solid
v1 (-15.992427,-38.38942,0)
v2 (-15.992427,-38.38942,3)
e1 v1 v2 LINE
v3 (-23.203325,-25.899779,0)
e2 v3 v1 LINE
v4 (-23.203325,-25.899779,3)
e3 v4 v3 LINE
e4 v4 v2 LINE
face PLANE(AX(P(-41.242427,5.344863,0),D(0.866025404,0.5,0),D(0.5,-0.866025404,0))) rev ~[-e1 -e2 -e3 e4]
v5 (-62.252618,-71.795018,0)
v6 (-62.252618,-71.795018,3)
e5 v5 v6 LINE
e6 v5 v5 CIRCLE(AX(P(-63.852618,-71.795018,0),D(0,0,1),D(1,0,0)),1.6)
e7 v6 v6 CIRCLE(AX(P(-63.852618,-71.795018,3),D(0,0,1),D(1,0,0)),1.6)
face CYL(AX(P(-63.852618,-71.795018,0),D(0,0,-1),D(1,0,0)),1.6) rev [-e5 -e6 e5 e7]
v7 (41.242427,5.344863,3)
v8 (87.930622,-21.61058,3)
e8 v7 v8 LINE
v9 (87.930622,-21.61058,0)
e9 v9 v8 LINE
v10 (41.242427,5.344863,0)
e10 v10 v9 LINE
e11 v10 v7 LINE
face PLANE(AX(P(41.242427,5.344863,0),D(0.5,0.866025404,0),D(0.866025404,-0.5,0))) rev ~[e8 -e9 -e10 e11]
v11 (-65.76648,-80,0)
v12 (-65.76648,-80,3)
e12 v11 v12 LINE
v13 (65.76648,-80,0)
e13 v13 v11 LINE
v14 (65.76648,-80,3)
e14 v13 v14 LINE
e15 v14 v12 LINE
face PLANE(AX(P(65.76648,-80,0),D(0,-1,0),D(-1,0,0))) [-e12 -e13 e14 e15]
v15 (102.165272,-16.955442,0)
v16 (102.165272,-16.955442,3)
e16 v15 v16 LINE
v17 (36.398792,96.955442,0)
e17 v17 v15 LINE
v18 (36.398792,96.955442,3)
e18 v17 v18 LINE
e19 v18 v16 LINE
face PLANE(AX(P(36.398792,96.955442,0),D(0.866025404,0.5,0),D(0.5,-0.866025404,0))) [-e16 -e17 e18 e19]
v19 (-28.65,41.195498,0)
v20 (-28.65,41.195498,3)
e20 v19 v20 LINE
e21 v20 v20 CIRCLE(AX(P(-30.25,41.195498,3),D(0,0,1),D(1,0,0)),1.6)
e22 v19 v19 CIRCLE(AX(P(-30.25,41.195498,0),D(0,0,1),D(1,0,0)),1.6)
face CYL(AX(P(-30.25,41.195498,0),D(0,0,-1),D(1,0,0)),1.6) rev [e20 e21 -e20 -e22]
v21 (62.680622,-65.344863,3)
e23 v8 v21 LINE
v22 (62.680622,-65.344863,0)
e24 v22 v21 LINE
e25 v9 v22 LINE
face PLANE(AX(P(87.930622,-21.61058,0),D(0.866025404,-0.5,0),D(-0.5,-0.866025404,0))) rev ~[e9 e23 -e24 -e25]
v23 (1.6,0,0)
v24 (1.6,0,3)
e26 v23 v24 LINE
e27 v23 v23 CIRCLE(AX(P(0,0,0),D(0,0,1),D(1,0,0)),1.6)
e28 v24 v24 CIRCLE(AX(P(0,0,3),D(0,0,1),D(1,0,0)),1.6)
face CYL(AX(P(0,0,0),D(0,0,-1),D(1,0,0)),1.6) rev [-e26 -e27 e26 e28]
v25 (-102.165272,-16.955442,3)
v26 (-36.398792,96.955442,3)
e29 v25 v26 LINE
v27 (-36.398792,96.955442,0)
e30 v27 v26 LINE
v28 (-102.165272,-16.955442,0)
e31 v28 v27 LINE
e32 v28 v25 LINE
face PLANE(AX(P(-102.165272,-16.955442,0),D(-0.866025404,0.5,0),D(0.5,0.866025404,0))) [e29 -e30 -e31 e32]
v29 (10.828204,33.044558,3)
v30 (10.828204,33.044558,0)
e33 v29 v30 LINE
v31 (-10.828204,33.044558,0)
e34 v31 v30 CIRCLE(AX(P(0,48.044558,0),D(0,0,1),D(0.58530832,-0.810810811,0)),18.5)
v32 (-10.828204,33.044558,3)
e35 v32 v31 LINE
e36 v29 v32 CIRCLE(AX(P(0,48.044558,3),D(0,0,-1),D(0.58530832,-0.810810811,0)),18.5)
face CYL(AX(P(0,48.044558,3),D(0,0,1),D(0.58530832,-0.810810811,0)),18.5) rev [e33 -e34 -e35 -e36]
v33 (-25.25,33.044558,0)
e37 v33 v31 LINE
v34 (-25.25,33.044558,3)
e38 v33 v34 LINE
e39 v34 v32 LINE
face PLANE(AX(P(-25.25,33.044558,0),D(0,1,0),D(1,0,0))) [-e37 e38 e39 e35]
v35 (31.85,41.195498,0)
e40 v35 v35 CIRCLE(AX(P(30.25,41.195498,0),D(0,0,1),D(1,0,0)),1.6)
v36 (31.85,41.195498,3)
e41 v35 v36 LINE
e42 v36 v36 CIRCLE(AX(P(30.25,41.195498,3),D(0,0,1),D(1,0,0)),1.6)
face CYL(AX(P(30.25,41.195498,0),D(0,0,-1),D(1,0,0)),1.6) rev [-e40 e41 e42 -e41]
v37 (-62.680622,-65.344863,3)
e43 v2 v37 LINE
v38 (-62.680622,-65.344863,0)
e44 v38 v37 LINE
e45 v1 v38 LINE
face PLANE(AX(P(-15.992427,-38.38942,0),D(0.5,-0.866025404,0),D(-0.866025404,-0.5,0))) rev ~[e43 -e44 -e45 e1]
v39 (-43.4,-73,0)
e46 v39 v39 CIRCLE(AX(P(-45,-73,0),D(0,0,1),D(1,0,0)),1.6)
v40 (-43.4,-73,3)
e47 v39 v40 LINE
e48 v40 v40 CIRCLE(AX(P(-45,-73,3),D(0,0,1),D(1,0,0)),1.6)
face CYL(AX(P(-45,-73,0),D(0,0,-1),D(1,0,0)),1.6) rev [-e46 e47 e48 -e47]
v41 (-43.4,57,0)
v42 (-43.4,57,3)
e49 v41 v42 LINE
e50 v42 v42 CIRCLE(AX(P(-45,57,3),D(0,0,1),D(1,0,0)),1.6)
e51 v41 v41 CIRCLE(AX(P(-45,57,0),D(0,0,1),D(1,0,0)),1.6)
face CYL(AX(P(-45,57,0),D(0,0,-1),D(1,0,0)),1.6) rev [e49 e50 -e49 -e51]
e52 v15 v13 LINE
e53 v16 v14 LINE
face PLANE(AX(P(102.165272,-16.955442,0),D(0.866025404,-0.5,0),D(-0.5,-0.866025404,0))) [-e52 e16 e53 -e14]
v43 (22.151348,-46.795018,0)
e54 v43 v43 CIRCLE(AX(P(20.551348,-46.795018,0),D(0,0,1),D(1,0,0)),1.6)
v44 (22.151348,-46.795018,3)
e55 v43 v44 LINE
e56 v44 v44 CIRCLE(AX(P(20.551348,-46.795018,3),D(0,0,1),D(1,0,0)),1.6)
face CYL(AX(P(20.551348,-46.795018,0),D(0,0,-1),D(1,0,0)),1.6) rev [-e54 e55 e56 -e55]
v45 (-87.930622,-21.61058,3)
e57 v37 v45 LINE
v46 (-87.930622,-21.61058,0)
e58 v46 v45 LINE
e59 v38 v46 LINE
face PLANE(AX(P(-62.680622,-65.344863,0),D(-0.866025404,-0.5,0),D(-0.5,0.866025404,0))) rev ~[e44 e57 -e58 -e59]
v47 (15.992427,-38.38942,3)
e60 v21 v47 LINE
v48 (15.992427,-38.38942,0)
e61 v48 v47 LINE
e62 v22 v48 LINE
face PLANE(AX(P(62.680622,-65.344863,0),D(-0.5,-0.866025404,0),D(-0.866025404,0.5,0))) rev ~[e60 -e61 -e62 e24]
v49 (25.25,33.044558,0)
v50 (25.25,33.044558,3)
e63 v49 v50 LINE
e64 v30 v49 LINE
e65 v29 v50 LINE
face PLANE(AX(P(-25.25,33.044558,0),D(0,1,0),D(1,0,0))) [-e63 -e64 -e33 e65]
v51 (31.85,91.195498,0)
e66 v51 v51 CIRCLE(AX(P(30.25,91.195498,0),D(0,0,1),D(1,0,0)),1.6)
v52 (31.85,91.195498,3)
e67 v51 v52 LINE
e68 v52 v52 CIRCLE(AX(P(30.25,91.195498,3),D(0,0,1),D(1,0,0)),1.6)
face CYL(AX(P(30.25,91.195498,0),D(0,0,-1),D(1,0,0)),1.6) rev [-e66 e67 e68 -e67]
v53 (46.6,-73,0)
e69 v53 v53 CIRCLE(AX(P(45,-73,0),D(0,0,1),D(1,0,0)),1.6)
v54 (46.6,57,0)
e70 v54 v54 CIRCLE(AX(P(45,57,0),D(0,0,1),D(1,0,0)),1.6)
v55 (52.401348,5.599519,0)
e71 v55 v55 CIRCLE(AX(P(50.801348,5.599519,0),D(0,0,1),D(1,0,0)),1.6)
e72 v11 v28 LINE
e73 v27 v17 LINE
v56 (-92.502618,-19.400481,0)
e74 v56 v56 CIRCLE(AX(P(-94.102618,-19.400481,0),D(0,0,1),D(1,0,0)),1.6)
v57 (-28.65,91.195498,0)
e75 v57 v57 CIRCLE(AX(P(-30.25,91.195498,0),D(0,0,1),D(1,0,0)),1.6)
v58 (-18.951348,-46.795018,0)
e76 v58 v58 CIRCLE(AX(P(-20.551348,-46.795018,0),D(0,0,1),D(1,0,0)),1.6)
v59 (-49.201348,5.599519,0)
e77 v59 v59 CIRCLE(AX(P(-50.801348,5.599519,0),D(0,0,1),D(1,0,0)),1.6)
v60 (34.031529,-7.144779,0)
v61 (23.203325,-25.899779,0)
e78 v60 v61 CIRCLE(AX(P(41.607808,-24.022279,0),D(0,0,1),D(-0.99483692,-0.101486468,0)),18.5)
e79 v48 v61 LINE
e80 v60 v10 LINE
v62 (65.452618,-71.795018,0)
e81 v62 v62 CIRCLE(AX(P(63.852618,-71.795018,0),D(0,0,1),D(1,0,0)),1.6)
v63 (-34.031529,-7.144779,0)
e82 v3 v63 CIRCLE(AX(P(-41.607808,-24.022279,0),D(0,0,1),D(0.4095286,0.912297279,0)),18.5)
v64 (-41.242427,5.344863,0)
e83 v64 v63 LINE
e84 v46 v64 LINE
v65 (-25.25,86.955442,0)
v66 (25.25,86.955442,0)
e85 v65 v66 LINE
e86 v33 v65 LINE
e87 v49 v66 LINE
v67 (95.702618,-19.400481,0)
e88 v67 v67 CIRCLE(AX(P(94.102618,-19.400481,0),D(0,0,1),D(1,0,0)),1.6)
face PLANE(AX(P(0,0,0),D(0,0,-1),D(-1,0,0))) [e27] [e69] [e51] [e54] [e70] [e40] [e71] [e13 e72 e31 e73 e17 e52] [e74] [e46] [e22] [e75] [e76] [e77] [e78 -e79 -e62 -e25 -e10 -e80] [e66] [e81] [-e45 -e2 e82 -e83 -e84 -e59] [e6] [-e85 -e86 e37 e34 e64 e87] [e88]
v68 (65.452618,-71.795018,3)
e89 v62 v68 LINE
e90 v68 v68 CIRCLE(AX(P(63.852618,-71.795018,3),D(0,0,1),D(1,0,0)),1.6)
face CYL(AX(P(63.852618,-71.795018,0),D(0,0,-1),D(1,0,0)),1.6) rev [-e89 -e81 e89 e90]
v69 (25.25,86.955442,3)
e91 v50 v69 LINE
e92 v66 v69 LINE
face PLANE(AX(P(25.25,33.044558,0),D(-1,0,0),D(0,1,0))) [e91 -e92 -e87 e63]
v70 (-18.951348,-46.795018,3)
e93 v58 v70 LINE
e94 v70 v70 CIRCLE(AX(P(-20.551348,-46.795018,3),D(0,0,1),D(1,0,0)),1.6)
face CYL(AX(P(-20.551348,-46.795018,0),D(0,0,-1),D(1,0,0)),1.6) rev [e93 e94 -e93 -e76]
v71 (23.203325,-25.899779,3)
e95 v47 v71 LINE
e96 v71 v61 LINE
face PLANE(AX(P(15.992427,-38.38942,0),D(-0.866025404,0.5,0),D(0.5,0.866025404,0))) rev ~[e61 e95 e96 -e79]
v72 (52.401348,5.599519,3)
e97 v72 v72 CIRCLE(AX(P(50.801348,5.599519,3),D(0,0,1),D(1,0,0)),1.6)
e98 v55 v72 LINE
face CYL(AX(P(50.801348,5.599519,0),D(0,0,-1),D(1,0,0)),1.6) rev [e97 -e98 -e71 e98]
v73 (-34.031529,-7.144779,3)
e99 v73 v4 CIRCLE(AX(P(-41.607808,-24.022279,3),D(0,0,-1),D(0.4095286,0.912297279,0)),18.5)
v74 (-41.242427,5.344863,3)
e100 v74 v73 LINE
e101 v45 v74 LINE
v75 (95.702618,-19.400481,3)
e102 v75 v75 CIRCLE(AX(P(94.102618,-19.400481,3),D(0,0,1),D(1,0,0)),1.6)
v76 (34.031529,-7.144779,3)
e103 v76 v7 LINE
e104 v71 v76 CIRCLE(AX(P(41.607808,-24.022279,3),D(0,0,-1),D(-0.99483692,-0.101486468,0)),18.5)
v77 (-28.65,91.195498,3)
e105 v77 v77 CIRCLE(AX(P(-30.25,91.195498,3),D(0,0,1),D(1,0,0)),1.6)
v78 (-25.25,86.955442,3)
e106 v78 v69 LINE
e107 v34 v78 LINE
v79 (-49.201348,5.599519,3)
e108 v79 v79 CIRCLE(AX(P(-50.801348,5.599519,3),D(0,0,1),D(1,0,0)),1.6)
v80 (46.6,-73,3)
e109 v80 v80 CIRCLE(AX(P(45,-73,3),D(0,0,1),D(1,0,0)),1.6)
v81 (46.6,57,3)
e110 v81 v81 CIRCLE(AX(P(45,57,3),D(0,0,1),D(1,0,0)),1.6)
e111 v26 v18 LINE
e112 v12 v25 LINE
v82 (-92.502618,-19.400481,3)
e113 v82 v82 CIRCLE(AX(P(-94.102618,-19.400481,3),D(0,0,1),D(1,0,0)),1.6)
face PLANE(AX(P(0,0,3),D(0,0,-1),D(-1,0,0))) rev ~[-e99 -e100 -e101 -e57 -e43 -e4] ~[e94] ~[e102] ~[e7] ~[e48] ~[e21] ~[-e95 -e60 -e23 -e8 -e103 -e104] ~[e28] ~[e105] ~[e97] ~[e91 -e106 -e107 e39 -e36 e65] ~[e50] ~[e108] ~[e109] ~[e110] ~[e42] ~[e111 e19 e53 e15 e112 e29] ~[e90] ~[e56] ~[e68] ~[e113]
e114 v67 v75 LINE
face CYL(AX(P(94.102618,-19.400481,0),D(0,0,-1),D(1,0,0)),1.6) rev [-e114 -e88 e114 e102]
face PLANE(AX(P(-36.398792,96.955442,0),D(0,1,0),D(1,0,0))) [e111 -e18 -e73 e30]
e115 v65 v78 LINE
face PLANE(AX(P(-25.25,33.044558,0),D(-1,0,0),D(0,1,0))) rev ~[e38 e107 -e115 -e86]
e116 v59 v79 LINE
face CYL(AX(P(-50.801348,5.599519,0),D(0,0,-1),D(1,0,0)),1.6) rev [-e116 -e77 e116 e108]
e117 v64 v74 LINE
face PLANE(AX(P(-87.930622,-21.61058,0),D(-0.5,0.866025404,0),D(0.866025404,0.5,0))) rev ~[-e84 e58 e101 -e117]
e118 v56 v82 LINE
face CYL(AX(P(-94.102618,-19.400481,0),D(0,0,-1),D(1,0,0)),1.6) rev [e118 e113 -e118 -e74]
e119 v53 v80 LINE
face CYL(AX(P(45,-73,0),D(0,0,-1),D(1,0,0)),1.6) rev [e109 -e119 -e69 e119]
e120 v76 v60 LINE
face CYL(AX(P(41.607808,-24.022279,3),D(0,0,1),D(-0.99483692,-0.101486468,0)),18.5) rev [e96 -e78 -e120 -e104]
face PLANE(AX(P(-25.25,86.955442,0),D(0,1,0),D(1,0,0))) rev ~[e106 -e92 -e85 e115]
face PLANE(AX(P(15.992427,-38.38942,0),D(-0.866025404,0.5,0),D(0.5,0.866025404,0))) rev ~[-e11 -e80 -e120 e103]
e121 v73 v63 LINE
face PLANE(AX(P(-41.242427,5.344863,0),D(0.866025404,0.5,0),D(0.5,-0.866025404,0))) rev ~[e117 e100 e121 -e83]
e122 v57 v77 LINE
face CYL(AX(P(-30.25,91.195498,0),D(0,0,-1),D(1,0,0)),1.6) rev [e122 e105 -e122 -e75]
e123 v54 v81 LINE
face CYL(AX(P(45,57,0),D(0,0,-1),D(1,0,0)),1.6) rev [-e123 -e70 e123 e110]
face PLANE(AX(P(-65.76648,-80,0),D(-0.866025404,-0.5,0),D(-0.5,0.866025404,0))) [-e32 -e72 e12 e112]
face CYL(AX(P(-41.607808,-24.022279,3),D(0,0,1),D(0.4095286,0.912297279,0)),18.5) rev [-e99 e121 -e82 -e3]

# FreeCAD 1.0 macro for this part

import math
import FreeCAD as App
import Part
import Sketcher

V = App.Vector
Q = App.Units.Quantity


def add_polygon(sketch, points):
    """Adds a closed chain of lines whose ends are joined by coincident constraints."""
    first, n = sketch.GeometryCount, len(points)
    for a, b in zip(points, points[1:] + points[:1]):
        sketch.addGeometry(Part.LineSegment(App.Vector(*a, 0), App.Vector(*b, 0)), False)
    for i in range(n):
        sketch.addConstraint(Sketcher.Constraint("Coincident", first + i, 2, first + (i + 1) % n, 1))

doc = App.newDocument("Part")
params = doc.addObject("Spreadsheet::Sheet", "Params")
for row, (alias, value) in enumerate([
    ("sketch1_diameter", "3.2 mm"),
    ("sketch1_width", "50.5 mm"),
    ("sketch1_length", "50.5 mm"),
    ("pad1_length", "3 mm"),
    ("sketch2_radius", "18.5 mm"),
], start=1):
    params.set(f"A{row}", alias)
    params.set(f"B{row}", "=" + value)
    params.setAlias(f"B{row}", alias)

body = doc.addObject("PartDesign::Body", "Body")

# Sketch on XY plane
sketch1 = body.newObject("Sketcher::SketchObject", "Sketch")
sketch1.AttachmentSupport = (doc.getObject("XY_Plane"), [""])
sketch1.MapMode = "FlatFace"
add_polygon(sketch1, [(36.4, 97), (-36.4, 97), (-102.2, -17), (-65.8, -80), (65.8, -80), (102.2, -17)])  # lines 0-5
sketch1.addGeometry(Part.Circle(V(63.9, -71.8, 0), V(0, 0, 1), 1.6), False)  # 6
sketch1.addGeometry(Part.Circle(V(45, -73, 0), V(0, 0, 1), 1.6), False)  # 7
sketch1.addGeometry(Part.Circle(V(20.6, -46.8, 0), V(0, 0, 1), 1.6), False)  # 8
sketch1.addGeometry(Part.Circle(V(94.1, -19.4, 0), V(0, 0, 1), 1.6), False)  # 9
add_polygon(sketch1, [(87.9, -21.6), (62.7, -65.3), (16, -38.4), (41.2, 5.3)])  # lines 10-13
sketch1.addGeometry(Part.Circle(V(50.8, 5.6, 0), V(0, 0, 1), 1.6), False)  # 14
sketch1.addGeometry(Part.Circle(V(-45, -73, 0), V(0, 0, 1), 1.6), False)  # 15
sketch1.addGeometry(Part.Circle(V(-20.6, -46.8, 0), V(0, 0, 1), 1.6), False)  # 16
sketch1.addGeometry(Part.Circle(V(-63.9, -71.8, 0), V(0, 0, 1), 1.6), False)  # 17
sketch1.addGeometry(Part.Circle(V(0, 0, 0), V(0, 0, 1), 1.6), False)  # 18
add_polygon(sketch1, [(-62.7, -65.3), (-87.9, -21.6), (-41.2, 5.3), (-16, -38.4)])  # lines 19-22
sketch1.addGeometry(Part.Circle(V(-94.1, -19.4, 0), V(0, 0, 1), 1.6), False)  # 23
sketch1.addGeometry(Part.Circle(V(-50.8, 5.6, 0), V(0, 0, 1), 1.6), False)  # 24
sketch1.addGeometry(Part.Circle(V(30.2, 41.2, 0), V(0, 0, 1), 1.6), False)  # 25
sketch1.addGeometry(Part.Circle(V(45, 57, 0), V(0, 0, 1), 1.6), False)  # 26
sketch1.addGeometry(Part.Circle(V(30.2, 91.2, 0), V(0, 0, 1), 1.6), False)  # 27
sketch1.addGeometry(Part.Circle(V(-30.2, 41.2, 0), V(0, 0, 1), 1.6), False)  # 28
add_polygon(sketch1, [(-25.2, 33), (-25.2, 87), (25.2, 87), (25.2, 33)])  # lines 29-32
sketch1.addGeometry(Part.Circle(V(-45, 57, 0), V(0, 0, 1), 1.6), False)  # 33
sketch1.addGeometry(Part.Circle(V(-30.2, 91.2, 0), V(0, 0, 1), 1.6), False)  # 34
sketch1.addConstraint([
    Sketcher.Constraint("Horizontal", 0),
    Sketcher.Constraint("Horizontal", 3),
    Sketcher.Constraint("Vertical", 29),
    Sketcher.Constraint("Horizontal", 30),
    Sketcher.Constraint("Vertical", 31),
    Sketcher.Constraint("Horizontal", 32),
    Sketcher.Constraint("Coincident", 18, 3, -1, 1),
    Sketcher.Constraint("Equal", 6, 7),
    Sketcher.Constraint("Equal", 7, 8),
    Sketcher.Constraint("Equal", 8, 9),
    Sketcher.Constraint("Equal", 9, 14),
    Sketcher.Constraint("Equal", 14, 15),
    Sketcher.Constraint("Equal", 15, 16),
    Sketcher.Constraint("Equal", 16, 17),
    Sketcher.Constraint("Equal", 17, 18),
    Sketcher.Constraint("Equal", 18, 23),
    Sketcher.Constraint("Equal", 23, 24),
    Sketcher.Constraint("Equal", 24, 25),
    Sketcher.Constraint("Equal", 25, 26),
    Sketcher.Constraint("Equal", 26, 27),
    Sketcher.Constraint("Equal", 27, 28),
    Sketcher.Constraint("Equal", 28, 33),
    Sketcher.Constraint("Equal", 33, 34),
    Sketcher.Constraint("Symmetric", 7, 3, 15, 3, -2),
    Sketcher.Constraint("Symmetric", 8, 3, 16, 3, -2),
    Sketcher.Constraint("Symmetric", 6, 3, 17, 3, -2),
    Sketcher.Constraint("Symmetric", 9, 3, 23, 3, -2),
    Sketcher.Constraint("Symmetric", 14, 3, 24, 3, -2),
    Sketcher.Constraint("Symmetric", 25, 3, 28, 3, -2),
    Sketcher.Constraint("Symmetric", 26, 3, 33, 3, -2),
    Sketcher.Constraint("Symmetric", 27, 3, 34, 3, -2),
    Sketcher.Constraint("Symmetric", 1, 2, 4, 2, -2),
    Sketcher.Constraint("Symmetric", 13, 2, 19, 2, -2),
    Sketcher.Constraint("Symmetric", 12, 2, 20, 2, -2),
    Sketcher.Constraint("Symmetric", 11, 2, 21, 2, -2),
    Sketcher.Constraint("Symmetric", 10, 2, 22, 2, -2),
    Sketcher.Constraint("Parallel", 1, 4),
    Sketcher.Constraint("Parallel", 2, 5),
    Sketcher.Constraint("Parallel", 4, 10),
    Sketcher.Constraint("Perpendicular", 10, 11),
    Sketcher.Constraint("Perpendicular", 11, 12),
    Sketcher.Constraint("Perpendicular", 12, 13),
    Sketcher.Constraint("Parallel", 5, 19),
    Sketcher.Constraint("Vertical", 7, 3, 26, 3),
    Sketcher.Constraint("Vertical", 25, 3, 27, 3),
    Sketcher.Constraint("Diameter", 6, Q("3.2 mm")),
    Sketcher.Constraint("Angle", 1, Q("-120 deg")),
    Sketcher.Constraint("DistanceX", 30, 1, 30, 2, Q("50.5 mm")),
    Sketcher.Constraint("DistanceX", -1, 1, 7, 3, Q("45 mm")),
    Sketcher.Constraint("DistanceY", 7, 3, -1, 1, Q("73 mm")),
    Sketcher.Constraint("DistanceY", -1, 1, 26, 3, Q("57 mm")),
    Sketcher.Constraint("DistanceY", 2, 2, -1, 1, Q("80 mm")),
    Sketcher.Constraint("DistanceY", 6, 3, 8, 3, Q("25 mm")),
    Sketcher.Constraint("DistanceY", 9, 3, 14, 3, Q("25 mm")),
    Sketcher.Constraint("DistanceY", 25, 3, 27, 3, Q("50 mm")),
    Sketcher.Constraint("DistanceX", 34, 3, 29, 2, Q("5 mm")),
    Sketcher.Constraint("DistanceY", 29, 2, 0, 2, Q("10 mm")),
    Sketcher.Constraint("DistanceX", 30, 2, 27, 3, Q("5 mm")),
    Sketcher.Constraint("Distance", 10, Q("50.5 mm")),
    Sketcher.Constraint("DistanceX", 6, 3, 9, 3, Q("30.25 mm")),
    Sketcher.Constraint("DistanceX", 8, 3, 14, 3, Q("30.25 mm")),
    Sketcher.Constraint("DistanceX", 3, 1, 3, 2, Q("131.532959 mm")),
    Sketcher.Constraint("DistanceY", -1, 1, 25, 3, Q("41.195498 mm")),
    Sketcher.Constraint("DistanceY", 13, 2, 9, 3, Q("2.210099 mm")),
    Sketcher.Constraint("Distance", 1, Q("131.532959 mm")),
    Sketcher.Constraint("DistanceX", 0, 2, 0, 1, Q("72.797585 mm")),
    Sketcher.Constraint("DistanceY", 29, 1, 29, 2, Q("53.910884 mm")),
    Sketcher.Constraint("DistanceX", -1, 1, 6, 3, Q("63.852618 mm")),
    Sketcher.Constraint("DistanceY", 9, 3, -1, 1, Q("19.400481 mm")),
    Sketcher.Constraint("DistanceX", -1, 1, 10, 2, Q("62.680622 mm")),
    Sketcher.Constraint("DistanceY", 11, 2, -1, 1, Q("38.38942 mm")),
    Sketcher.Constraint("DistanceX", 8, 3, 6, 3, Q("43.30127 mm")),
    Sketcher.Constraint("DistanceY", 6, 3, -1, 1, Q("71.795018 mm")),
])
sketch1.setExpression("Constraints[63]", "Params.sketch1_diameter")
sketch1.setExpression("Constraints[65]", "Params.sketch1_width")
sketch1.setExpression("Constraints[76]", "Params.sketch1_length")
pad1 = body.newObject("PartDesign::Pad", "Pad")
pad1.Profile = sketch1
pad1.setExpression("Length", "Params.pad1_length")

# Sketch on XY plane
sketch2 = body.newObject("Sketcher::SketchObject", "Sketch001")
sketch2.AttachmentSupport = (doc.getObject("XY_Plane"), [""])
sketch2.MapMode = "FlatFace"
sketch2.AttachmentOffset = App.Placement(V(0, 0, 3), App.Rotation())
sketch2.addGeometry([
    Part.LineSegment(V(11, 33, 0), V(-11, 33, 0)),  # 0
    Part.ArcOfCircle(Part.Circle(V(0, 48, 0), V(0, 0, 1), 18), math.radians(-126), math.radians(-54)),  # 1
    Part.LineSegment(V(23, -26, 0), V(34, -7, 0)),  # 2
    Part.ArcOfCircle(Part.Circle(V(42, -24, 0), V(0, 0, 1), 19), math.radians(114), math.radians(186)),  # 3
    Part.LineSegment(V(-34, -7, 0), V(-23, -26, 0)),  # 4
    Part.ArcOfCircle(Part.Circle(V(-42, -24, 0), V(0, 0, 1), 19), math.radians(-6), math.radians(66)),  # 5
], False)
sketch2.addConstraint([
    Sketcher.Constraint("Coincident", 0, 1, 1, 2),
    Sketcher.Constraint("Coincident", 1, 1, 0, 2),
    Sketcher.Constraint("Coincident", 2, 1, 3, 2),
    Sketcher.Constraint("Coincident", 3, 1, 2, 2),
    Sketcher.Constraint("Coincident", 4, 1, 5, 2),
    Sketcher.Constraint("Coincident", 5, 1, 4, 2),
    Sketcher.Constraint("Horizontal", 0),
    Sketcher.Constraint("Equal", 1, 3),
    Sketcher.Constraint("Equal", 3, 5),
    Sketcher.Constraint("Symmetric", 3, 3, 5, 3, -2),
    Sketcher.Constraint("PointOnObject", 1, 3, -2),
    Sketcher.Constraint("Horizontal", 3, 1, 4, 1),
    Sketcher.Constraint("Horizontal", 2, 1, 5, 1),
    Sketcher.Constraint("Radius", 1, Q("18.5 mm")),
    Sketcher.Constraint("Angle", 2, Q("60 deg")),
    Sketcher.Constraint("DistanceY", 0, 1, 1, 3, Q("15 mm")),
    Sketcher.Constraint("DistanceY", 2, 1, 3, 1, Q("18.754999 mm")),
    Sketcher.Constraint("DistanceY", 3, 3, -1, 1, Q("24.022279 mm")),
    Sketcher.Constraint("DistanceX", -1, 1, 3, 1, Q("34.031529 mm")),
    Sketcher.Constraint("DistanceY", -1, 1, 1, 3, Q("48.044558 mm")),
])
sketch2.setExpression("Constraints[13]", "Params.sketch2_radius")
pocket1 = body.newObject("PartDesign::Pocket", "Pocket")
pocket1.Profile = sketch2
pocket1.Type = "ThroughAll"

doc.recompute()
